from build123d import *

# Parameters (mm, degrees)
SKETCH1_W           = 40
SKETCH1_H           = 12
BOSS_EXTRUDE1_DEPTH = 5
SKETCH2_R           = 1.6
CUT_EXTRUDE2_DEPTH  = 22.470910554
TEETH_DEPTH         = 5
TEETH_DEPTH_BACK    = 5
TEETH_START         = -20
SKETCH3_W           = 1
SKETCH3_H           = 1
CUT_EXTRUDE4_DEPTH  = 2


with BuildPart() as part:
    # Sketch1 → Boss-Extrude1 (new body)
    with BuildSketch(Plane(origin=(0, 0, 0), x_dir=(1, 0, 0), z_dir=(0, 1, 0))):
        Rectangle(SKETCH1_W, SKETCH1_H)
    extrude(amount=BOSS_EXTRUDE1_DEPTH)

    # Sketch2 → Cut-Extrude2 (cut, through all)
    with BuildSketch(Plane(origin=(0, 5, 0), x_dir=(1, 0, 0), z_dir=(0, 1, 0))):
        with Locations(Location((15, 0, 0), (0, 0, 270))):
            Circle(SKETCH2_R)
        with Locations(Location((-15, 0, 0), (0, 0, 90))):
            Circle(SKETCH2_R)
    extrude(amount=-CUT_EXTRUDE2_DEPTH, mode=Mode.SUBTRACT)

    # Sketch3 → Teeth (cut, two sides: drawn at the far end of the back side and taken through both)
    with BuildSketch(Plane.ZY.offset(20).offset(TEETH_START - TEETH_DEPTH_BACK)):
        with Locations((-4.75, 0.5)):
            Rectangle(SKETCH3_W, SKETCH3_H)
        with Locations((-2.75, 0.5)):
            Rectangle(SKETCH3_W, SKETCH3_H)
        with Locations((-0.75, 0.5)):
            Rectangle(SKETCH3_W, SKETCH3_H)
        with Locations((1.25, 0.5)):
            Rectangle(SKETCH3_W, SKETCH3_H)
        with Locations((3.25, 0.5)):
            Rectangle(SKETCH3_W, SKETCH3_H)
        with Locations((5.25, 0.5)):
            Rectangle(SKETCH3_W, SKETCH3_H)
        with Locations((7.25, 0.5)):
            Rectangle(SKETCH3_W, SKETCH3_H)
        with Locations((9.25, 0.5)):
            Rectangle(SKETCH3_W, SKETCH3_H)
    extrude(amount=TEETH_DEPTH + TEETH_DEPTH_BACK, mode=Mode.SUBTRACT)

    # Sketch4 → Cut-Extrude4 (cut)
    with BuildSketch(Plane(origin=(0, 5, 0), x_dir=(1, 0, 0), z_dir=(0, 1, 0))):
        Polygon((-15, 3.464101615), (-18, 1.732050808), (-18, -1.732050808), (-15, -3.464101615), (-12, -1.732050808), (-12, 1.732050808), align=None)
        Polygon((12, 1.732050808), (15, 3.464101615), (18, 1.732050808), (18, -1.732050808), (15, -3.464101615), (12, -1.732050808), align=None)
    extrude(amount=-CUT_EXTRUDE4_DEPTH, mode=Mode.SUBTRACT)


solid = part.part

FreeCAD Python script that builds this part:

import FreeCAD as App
import Part
import Sketcher

V = App.Vector
Q = App.Units.Quantity


def add_polygon(sketch, points):
    """Adds a closed chain of lines whose ends are joined by coincident constraints."""
    first, n = sketch.GeometryCount, len(points)
    for a, b in zip(points, points[1:] + points[:1]):
        sketch.addGeometry(Part.LineSegment(App.Vector(*a, 0), App.Vector(*b, 0)), False)
    for i in range(n):
        sketch.addConstraint(Sketcher.Constraint("Coincident", first + i, 2, first + (i + 1) % n, 1))

doc = App.newDocument("Part")
params = doc.addObject("Spreadsheet::Sheet", "Params")
for row, (alias, value) in enumerate([
    ("sketch1_width", "40 mm"),
    ("sketch1_height", "12 mm"),
    ("pad1_length", "5 mm"),
    ("sketch2_diameter", "3.2 mm"),
    ("sketch3_width", "1 mm"),
    ("pocket2_length", "5 mm"),
    ("pocket2_length2", "5 mm"),
    ("pocket3_length", "2 mm"),
], start=1):
    params.set(f"A{row}", alias)
    params.set(f"B{row}", "=" + value)
    params.setAlias(f"B{row}", alias)

body = doc.addObject("PartDesign::Body", "Body")

# Sketch on XZ plane
sketch1 = body.newObject("Sketcher::SketchObject", "Sketch")
sketch1.AttachmentSupport = (doc.getObject("XZ_Plane"), [""])
sketch1.MapMode = "FlatFace"
add_polygon(sketch1, [(-20, -6), (-20, 6), (20, 6), (20, -6)])  # lines 0-3
sketch1.addConstraint([
    Sketcher.Constraint("Vertical", 0),
    Sketcher.Constraint("Horizontal", 1),
    Sketcher.Constraint("Vertical", 2),
    Sketcher.Constraint("Horizontal", 3),
    Sketcher.Constraint("Symmetric", 0, 2, 2, 2, -1, 1),
    Sketcher.Constraint("DistanceX", 1, 1, 1, 2, Q("40 mm")),
    Sketcher.Constraint("DistanceY", 0, 1, 0, 2, Q("12 mm")),
])
sketch1.setExpression("Constraints[9]", "Params.sketch1_width")
sketch1.setExpression("Constraints[10]", "Params.sketch1_height")
pad1 = body.newObject("PartDesign::Pad", "Pad")
pad1.Profile = sketch1
pad1.setExpression("Length", "Params.pad1_length")
pad1.Reversed = True

# Sketch on XZ plane
sketch2 = body.newObject("Sketcher::SketchObject", "Sketch001")
sketch2.AttachmentSupport = (doc.getObject("XZ_Plane"), [""])
sketch2.MapMode = "FlatFace"
sketch2.AttachmentOffset = App.Placement(V(0, 0, -5), App.Rotation())
sketch2.addGeometry([
    Part.Circle(V(15, 0, 0), V(0, 0, 1), 1.6),
    Part.Circle(V(-15, 0, 0), V(0, 0, 1), 1.6),
], False)
sketch2.addConstraint([
    Sketcher.Constraint("Equal", 0, 1),
    Sketcher.Constraint("Symmetric", 0, 3, 1, 3, -1, 1),
    Sketcher.Constraint("PointOnObject", 0, 3, -1),
    Sketcher.Constraint("Diameter", 0, Q("3.2 mm")),
    Sketcher.Constraint("DistanceX", -1, 1, 0, 3, Q("15 mm")),
])
sketch2.setExpression("Constraints[3]", "Params.sketch2_diameter")
pocket1 = body.newObject("PartDesign::Pocket", "Pocket")
pocket1.Profile = sketch2
pocket1.Type = "ThroughAll"
pocket1.Reversed = True

# Sketch on YZ plane
sketch3 = body.newObject("Sketcher::SketchObject", "Sketch002")
sketch3.AttachmentSupport = (doc.getObject("YZ_Plane"), [""])
sketch3.MapMode = "FlatFace"
add_polygon(sketch3, [(1, -5.25), (0, -5.25), (0, -4.25), (1, -4.25)])  # lines 0-3
add_polygon(sketch3, [(1, -3.25), (0, -3.25), (0, -2.25), (1, -2.25)])  # lines 4-7
add_polygon(sketch3, [(1, -1.25), (0, -1.25), (0, -0.25), (1, -0.25)])  # lines 8-11
add_polygon(sketch3, [(1, 0.75), (0, 0.75), (0, 1.75), (1, 1.75)])  # lines 12-15
add_polygon(sketch3, [(1, 2.75), (0, 2.75), (0, 3.75), (1, 3.75)])  # lines 16-19
add_polygon(sketch3, [(1, 4.75), (0, 4.75), (0, 5.75), (1, 5.75)])  # lines 20-23
add_polygon(sketch3, [(1, 6.75), (0, 6.75), (0, 7.75), (1, 7.75)])  # lines 24-27
add_polygon(sketch3, [(1, 8.75), (0, 8.75), (0, 9.75), (1, 9.75)])  # lines 28-31
sketch3.addConstraint([
    Sketcher.Constraint("Horizontal", 0),
    Sketcher.Constraint("Vertical", 1),
    Sketcher.Constraint("Horizontal", 2),
    Sketcher.Constraint("Vertical", 3),
    Sketcher.Constraint("Horizontal", 4),
    Sketcher.Constraint("Vertical", 5),
    Sketcher.Constraint("Horizontal", 6),
    Sketcher.Constraint("Vertical", 7),
    Sketcher.Constraint("Horizontal", 8),
    Sketcher.Constraint("Vertical", 9),
    Sketcher.Constraint("Horizontal", 10),
    Sketcher.Constraint("Vertical", 11),
    Sketcher.Constraint("Horizontal", 12),
    Sketcher.Constraint("Vertical", 13),
    Sketcher.Constraint("Horizontal", 14),
    Sketcher.Constraint("Vertical", 15),
    Sketcher.Constraint("Horizontal", 16),
    Sketcher.Constraint("Vertical", 17),
    Sketcher.Constraint("Horizontal", 18),
    Sketcher.Constraint("Vertical", 19),
    Sketcher.Constraint("Horizontal", 20),
    Sketcher.Constraint("Vertical", 21),
    Sketcher.Constraint("Horizontal", 22),
    Sketcher.Constraint("Vertical", 23),
    Sketcher.Constraint("Horizontal", 24),
    Sketcher.Constraint("Vertical", 25),
    Sketcher.Constraint("Horizontal", 26),
    Sketcher.Constraint("Vertical", 27),
    Sketcher.Constraint("Horizontal", 28),
    Sketcher.Constraint("Vertical", 29),
    Sketcher.Constraint("Horizontal", 30),
    Sketcher.Constraint("Vertical", 31),
    Sketcher.Constraint("PointOnObject", 0, 2, -2),
    Sketcher.Constraint("PointOnObject", 4, 2, -2),
    Sketcher.Constraint("PointOnObject", 8, 2, -2),
    Sketcher.Constraint("PointOnObject", 12, 2, -2),
    Sketcher.Constraint("PointOnObject", 16, 2, -2),
    Sketcher.Constraint("PointOnObject", 20, 2, -2),
    Sketcher.Constraint("PointOnObject", 24, 2, -2),
    Sketcher.Constraint("PointOnObject", 28, 2, -2),
    Sketcher.Constraint("Vertical", 3, 2, 6, 2),
    Sketcher.Constraint("Vertical", 7, 2, 10, 2),
    Sketcher.Constraint("Vertical", 11, 2, 14, 2),
    Sketcher.Constraint("Vertical", 15, 2, 18, 2),
    Sketcher.Constraint("Vertical", 19, 2, 22, 2),
    Sketcher.Constraint("Vertical", 23, 2, 26, 2),
    Sketcher.Constraint("Vertical", 27, 2, 30, 2),
    Sketcher.Constraint("Equal", 30, 1),
    Sketcher.Constraint("Equal", 3, 5),
    Sketcher.Constraint("Equal", 7, 9),
    Sketcher.Constraint("Equal", 11, 13),
    Sketcher.Constraint("Equal", 15, 17),
    Sketcher.Constraint("Equal", 19, 21),
    Sketcher.Constraint("Equal", 23, 25),
    Sketcher.Constraint("Equal", 27, 29),
    Sketcher.Constraint("DistanceX", 0, 2, 0, 1, Q("1 mm")),
    Sketcher.Constraint("DistanceY", 1, 2, 4, 2, Q("1 mm")),
    Sketcher.Constraint("DistanceY", 5, 2, 8, 2, Q("1 mm")),
    Sketcher.Constraint("DistanceY", 9, 2, 12, 2, Q("1 mm")),
    Sketcher.Constraint("DistanceY", 13, 2, 16, 2, Q("1 mm")),
    Sketcher.Constraint("DistanceY", 17, 2, 20, 2, Q("1 mm")),
    Sketcher.Constraint("DistanceY", 21, 2, 24, 2, Q("1 mm")),
    Sketcher.Constraint("DistanceY", 25, 2, 28, 2, Q("1 mm")),
    Sketcher.Constraint("DistanceY", 0, 2, -1, 1, Q("5.25 mm")),
])
sketch3.setExpression("Constraints[87]", "Params.sketch3_width")
pocket2 = body.newObject("PartDesign::Pocket", "Pocket001")
pocket2.Profile = sketch3
pocket2.Type = "TwoLengths"
pocket2.setExpression("Length", "Params.pocket2_length")
pocket2.setExpression("Length2", "Params.pocket2_length2")

# Sketch on XZ plane
sketch4 = body.newObject("Sketcher::SketchObject", "Sketch003")
sketch4.AttachmentSupport = (doc.getObject("XZ_Plane"), [""])
sketch4.MapMode = "FlatFace"
sketch4.AttachmentOffset = App.Placement(V(0, 0, -5), App.Rotation())
add_polygon(sketch4, [(-15, -3.464102), (-18, -1.732051), (-18, 1.732051), (-15, 3.464102), (-12, 1.732051), (-12, -1.732051)])  # lines 0-5
add_polygon(sketch4, [(15, -3.464102), (12, -1.732051), (12, 1.732051), (15, 3.464102), (18, 1.732051), (18, -1.732051)])  # lines 6-11
sketch4.addConstraint([
    Sketcher.Constraint("Vertical", 1),
    Sketcher.Constraint("Vertical", 4),
    Sketcher.Constraint("Vertical", 7),
    Sketcher.Constraint("Vertical", 10),
    Sketcher.Constraint("Symmetric", 3, 2, 6, 2, -1, 1),
    Sketcher.Constraint("Symmetric", 5, 2, 8, 2, -1, 1),
    Sketcher.Constraint("Symmetric", 0, 2, 9, 2, -1, 1),
    Sketcher.Constraint("Symmetric", 2, 2, 11, 2, -1, 1),
    Sketcher.Constraint("Symmetric", 2, 2, 8, 2, -2),
    Sketcher.Constraint("Parallel", 0, 3),
    Sketcher.Constraint("Parallel", 2, 5),
    Sketcher.Constraint("Parallel", 5, 8),
    Sketcher.Constraint("Parallel", 8, 11),
    Sketcher.Constraint("Horizontal", 1, 2, 3, 2),
    Sketcher.Constraint("Horizontal", 0, 2, 4, 2),
    Sketcher.Constraint("Angle", 0, Q("150 deg")),
    Sketcher.Constraint("DistanceX", 0, 2, -1, 1, Q("18 mm")),
    Sketcher.Constraint("DistanceX", 2, 2, -1, 1, Q("15 mm")),
    Sketcher.Constraint("DistanceY", 1, 1, 1, 2, Q("3.464102 mm")),
])
pocket3 = body.newObject("PartDesign::Pocket", "Pocket002")
pocket3.Profile = sketch4
pocket3.setExpression("Length", "Params.pocket3_length")
pocket3.Reversed = True

doc.recompute()
